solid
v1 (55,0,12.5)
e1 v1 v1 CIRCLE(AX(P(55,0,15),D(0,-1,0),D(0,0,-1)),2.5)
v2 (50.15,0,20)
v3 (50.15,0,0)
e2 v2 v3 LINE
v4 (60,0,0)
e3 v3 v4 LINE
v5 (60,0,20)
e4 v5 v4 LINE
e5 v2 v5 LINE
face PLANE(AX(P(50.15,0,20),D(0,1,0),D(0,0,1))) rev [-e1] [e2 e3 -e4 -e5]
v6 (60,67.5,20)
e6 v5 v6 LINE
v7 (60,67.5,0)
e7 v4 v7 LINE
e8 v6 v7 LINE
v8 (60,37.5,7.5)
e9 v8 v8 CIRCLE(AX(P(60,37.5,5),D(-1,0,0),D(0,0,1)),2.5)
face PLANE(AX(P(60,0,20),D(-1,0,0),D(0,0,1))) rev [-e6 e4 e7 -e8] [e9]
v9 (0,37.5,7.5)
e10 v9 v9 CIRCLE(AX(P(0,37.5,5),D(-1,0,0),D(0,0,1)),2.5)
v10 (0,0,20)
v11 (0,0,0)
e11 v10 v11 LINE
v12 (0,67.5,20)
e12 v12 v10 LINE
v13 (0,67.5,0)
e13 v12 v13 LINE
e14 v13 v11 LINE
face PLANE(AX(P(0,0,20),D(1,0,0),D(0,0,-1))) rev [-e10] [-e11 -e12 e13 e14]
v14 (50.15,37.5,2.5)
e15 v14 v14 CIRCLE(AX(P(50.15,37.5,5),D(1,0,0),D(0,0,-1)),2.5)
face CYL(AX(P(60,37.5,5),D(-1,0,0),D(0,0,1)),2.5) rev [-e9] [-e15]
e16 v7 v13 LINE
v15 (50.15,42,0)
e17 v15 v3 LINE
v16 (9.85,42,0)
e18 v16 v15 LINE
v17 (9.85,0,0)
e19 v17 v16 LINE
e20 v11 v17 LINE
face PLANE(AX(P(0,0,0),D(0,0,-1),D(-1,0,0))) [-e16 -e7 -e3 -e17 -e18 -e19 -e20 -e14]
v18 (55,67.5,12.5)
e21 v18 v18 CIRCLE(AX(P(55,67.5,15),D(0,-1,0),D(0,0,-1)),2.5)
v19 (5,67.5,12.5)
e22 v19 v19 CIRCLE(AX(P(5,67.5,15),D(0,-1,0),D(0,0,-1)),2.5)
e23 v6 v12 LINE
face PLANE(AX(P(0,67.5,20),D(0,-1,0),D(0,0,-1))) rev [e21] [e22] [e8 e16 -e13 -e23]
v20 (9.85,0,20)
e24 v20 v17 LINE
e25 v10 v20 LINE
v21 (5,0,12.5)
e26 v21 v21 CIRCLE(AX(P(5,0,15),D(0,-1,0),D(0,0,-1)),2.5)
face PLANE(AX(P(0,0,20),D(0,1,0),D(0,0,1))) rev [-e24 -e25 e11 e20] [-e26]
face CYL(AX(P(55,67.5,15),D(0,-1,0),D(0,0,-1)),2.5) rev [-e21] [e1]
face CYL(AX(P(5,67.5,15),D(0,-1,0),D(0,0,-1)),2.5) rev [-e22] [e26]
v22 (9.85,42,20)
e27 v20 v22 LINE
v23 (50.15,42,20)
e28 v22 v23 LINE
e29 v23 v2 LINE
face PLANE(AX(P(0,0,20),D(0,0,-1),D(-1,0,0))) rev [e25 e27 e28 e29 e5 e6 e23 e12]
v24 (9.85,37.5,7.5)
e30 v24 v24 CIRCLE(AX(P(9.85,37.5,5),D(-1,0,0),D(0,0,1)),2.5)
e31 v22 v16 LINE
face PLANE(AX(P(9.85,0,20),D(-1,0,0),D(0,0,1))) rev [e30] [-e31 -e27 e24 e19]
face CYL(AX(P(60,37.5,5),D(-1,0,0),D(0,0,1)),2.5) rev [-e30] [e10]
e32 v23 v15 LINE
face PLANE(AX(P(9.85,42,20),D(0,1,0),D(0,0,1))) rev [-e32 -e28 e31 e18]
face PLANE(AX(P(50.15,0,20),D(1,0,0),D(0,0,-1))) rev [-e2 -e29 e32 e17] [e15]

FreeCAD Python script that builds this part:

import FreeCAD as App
import Part
import Sketcher
Q = App.Units.Quantity


def add_polygon(sketch, points):
    """Adds a closed chain of lines whose ends are joined by coincident constraints."""
    first, n = sketch.GeometryCount, len(points)
    for a, b in zip(points, points[1:] + points[:1]):
        sketch.addGeometry(Part.LineSegment(App.Vector(*a, 0), App.Vector(*b, 0)), False)
    for i in range(n):
        sketch.addConstraint(Sketcher.Constraint("Coincident", first + i, 2, first + (i + 1) % n, 1))

doc = App.newDocument("Part")
body = doc.addObject("PartDesign::Body", "Body")

sketch1 = body.newObject("Sketcher::SketchObject", "Sketch")
sketch1.AttachmentSupport = (doc.getObject("XY_Plane"), [""])
sketch1.MapMode = "FlatFace"
add_polygon(sketch1, [(50, 0), (60, 0), (60, 68), (0, 68), (0, 0), (10, 0), (10, 42), (50, 42)])
sketch1.addConstraint([
    Sketcher.Constraint("Horizontal", 0),
    Sketcher.Constraint("Vertical", 1),
    Sketcher.Constraint("Horizontal", 2),
    Sketcher.Constraint("Vertical", 3),
    Sketcher.Constraint("Horizontal", 4),
    Sketcher.Constraint("Vertical", 5),
    Sketcher.Constraint("Horizontal", 6),
    Sketcher.Constraint("Vertical", 7),
    Sketcher.Constraint("Coincident", 3, 2, -1, 1),
    Sketcher.Constraint("PointOnObject", 0, 2, -1),
    Sketcher.Constraint("Equal", 0, 4),
    Sketcher.Constraint("DistanceX", 2, 2, 2, 1, Q("60 mm")),
    Sketcher.Constraint("DistanceY", 5, 1, 5, 2, Q("42 mm")),
    Sketcher.Constraint("DistanceX", 6, 1, 6, 2, Q("40.3 mm")),
    Sketcher.Constraint("DistanceY", 1, 1, 1, 2, Q("67.5 mm")),
])
pad1 = body.newObject("PartDesign::Pad", "Pad")
pad1.Profile = sketch1
pad1.Length = 20

sketch2 = body.newObject("Sketcher::SketchObject", "Sketch001")
sketch2.AttachmentSupport = (doc.getObject("XZ_Plane"), [""])
sketch2.MapMode = "FlatFace"
sketch2.addGeometry([
    Part.Circle(App.Vector(5, 15, 0), App.Vector(0, 0, 1), 2.5),
    Part.Circle(App.Vector(55, 15, 0), App.Vector(0, 0, 1), 2.5),
], False)
sketch2.addConstraint([
    Sketcher.Constraint("Equal", 0, 1),
    Sketcher.Constraint("Horizontal", 0, 3, 1, 3),
    Sketcher.Constraint("Diameter", 0, Q("5 mm")),
    Sketcher.Constraint("DistanceX", -1, 1, 0, 3, Q("5 mm")),
    Sketcher.Constraint("DistanceY", -1, 1, 0, 3, Q("15 mm")),
    Sketcher.Constraint("DistanceX", -1, 1, 1, 3, Q("55 mm")),
])
pocket1 = body.newObject("PartDesign::Pocket", "Pocket")
pocket1.Profile = sketch2
pocket1.Type = "ThroughAll"

sketch3 = body.newObject("Sketcher::SketchObject", "Sketch002")
sketch3.AttachmentSupport = (doc.getObject("YZ_Plane"), [""])
sketch3.MapMode = "FlatFace"
sketch3.addGeometry(Part.Circle(App.Vector(37.5, 5, 0), App.Vector(0, 0, 1), 2.5), False)
sketch3.addConstraint([
    Sketcher.Constraint("Diameter", 0, Q("5 mm")),
    Sketcher.Constraint("DistanceY", -1, 1, 0, 3, Q("5 mm")),
    Sketcher.Constraint("DistanceX", -1, 1, 0, 3, Q("37.5 mm")),
])
pocket2 = body.newObject("PartDesign::Pocket", "Pocket001")
pocket2.Profile = sketch3
pocket2.Type = "ThroughAll"
pocket2.Reversed = True

doc.recompute()
